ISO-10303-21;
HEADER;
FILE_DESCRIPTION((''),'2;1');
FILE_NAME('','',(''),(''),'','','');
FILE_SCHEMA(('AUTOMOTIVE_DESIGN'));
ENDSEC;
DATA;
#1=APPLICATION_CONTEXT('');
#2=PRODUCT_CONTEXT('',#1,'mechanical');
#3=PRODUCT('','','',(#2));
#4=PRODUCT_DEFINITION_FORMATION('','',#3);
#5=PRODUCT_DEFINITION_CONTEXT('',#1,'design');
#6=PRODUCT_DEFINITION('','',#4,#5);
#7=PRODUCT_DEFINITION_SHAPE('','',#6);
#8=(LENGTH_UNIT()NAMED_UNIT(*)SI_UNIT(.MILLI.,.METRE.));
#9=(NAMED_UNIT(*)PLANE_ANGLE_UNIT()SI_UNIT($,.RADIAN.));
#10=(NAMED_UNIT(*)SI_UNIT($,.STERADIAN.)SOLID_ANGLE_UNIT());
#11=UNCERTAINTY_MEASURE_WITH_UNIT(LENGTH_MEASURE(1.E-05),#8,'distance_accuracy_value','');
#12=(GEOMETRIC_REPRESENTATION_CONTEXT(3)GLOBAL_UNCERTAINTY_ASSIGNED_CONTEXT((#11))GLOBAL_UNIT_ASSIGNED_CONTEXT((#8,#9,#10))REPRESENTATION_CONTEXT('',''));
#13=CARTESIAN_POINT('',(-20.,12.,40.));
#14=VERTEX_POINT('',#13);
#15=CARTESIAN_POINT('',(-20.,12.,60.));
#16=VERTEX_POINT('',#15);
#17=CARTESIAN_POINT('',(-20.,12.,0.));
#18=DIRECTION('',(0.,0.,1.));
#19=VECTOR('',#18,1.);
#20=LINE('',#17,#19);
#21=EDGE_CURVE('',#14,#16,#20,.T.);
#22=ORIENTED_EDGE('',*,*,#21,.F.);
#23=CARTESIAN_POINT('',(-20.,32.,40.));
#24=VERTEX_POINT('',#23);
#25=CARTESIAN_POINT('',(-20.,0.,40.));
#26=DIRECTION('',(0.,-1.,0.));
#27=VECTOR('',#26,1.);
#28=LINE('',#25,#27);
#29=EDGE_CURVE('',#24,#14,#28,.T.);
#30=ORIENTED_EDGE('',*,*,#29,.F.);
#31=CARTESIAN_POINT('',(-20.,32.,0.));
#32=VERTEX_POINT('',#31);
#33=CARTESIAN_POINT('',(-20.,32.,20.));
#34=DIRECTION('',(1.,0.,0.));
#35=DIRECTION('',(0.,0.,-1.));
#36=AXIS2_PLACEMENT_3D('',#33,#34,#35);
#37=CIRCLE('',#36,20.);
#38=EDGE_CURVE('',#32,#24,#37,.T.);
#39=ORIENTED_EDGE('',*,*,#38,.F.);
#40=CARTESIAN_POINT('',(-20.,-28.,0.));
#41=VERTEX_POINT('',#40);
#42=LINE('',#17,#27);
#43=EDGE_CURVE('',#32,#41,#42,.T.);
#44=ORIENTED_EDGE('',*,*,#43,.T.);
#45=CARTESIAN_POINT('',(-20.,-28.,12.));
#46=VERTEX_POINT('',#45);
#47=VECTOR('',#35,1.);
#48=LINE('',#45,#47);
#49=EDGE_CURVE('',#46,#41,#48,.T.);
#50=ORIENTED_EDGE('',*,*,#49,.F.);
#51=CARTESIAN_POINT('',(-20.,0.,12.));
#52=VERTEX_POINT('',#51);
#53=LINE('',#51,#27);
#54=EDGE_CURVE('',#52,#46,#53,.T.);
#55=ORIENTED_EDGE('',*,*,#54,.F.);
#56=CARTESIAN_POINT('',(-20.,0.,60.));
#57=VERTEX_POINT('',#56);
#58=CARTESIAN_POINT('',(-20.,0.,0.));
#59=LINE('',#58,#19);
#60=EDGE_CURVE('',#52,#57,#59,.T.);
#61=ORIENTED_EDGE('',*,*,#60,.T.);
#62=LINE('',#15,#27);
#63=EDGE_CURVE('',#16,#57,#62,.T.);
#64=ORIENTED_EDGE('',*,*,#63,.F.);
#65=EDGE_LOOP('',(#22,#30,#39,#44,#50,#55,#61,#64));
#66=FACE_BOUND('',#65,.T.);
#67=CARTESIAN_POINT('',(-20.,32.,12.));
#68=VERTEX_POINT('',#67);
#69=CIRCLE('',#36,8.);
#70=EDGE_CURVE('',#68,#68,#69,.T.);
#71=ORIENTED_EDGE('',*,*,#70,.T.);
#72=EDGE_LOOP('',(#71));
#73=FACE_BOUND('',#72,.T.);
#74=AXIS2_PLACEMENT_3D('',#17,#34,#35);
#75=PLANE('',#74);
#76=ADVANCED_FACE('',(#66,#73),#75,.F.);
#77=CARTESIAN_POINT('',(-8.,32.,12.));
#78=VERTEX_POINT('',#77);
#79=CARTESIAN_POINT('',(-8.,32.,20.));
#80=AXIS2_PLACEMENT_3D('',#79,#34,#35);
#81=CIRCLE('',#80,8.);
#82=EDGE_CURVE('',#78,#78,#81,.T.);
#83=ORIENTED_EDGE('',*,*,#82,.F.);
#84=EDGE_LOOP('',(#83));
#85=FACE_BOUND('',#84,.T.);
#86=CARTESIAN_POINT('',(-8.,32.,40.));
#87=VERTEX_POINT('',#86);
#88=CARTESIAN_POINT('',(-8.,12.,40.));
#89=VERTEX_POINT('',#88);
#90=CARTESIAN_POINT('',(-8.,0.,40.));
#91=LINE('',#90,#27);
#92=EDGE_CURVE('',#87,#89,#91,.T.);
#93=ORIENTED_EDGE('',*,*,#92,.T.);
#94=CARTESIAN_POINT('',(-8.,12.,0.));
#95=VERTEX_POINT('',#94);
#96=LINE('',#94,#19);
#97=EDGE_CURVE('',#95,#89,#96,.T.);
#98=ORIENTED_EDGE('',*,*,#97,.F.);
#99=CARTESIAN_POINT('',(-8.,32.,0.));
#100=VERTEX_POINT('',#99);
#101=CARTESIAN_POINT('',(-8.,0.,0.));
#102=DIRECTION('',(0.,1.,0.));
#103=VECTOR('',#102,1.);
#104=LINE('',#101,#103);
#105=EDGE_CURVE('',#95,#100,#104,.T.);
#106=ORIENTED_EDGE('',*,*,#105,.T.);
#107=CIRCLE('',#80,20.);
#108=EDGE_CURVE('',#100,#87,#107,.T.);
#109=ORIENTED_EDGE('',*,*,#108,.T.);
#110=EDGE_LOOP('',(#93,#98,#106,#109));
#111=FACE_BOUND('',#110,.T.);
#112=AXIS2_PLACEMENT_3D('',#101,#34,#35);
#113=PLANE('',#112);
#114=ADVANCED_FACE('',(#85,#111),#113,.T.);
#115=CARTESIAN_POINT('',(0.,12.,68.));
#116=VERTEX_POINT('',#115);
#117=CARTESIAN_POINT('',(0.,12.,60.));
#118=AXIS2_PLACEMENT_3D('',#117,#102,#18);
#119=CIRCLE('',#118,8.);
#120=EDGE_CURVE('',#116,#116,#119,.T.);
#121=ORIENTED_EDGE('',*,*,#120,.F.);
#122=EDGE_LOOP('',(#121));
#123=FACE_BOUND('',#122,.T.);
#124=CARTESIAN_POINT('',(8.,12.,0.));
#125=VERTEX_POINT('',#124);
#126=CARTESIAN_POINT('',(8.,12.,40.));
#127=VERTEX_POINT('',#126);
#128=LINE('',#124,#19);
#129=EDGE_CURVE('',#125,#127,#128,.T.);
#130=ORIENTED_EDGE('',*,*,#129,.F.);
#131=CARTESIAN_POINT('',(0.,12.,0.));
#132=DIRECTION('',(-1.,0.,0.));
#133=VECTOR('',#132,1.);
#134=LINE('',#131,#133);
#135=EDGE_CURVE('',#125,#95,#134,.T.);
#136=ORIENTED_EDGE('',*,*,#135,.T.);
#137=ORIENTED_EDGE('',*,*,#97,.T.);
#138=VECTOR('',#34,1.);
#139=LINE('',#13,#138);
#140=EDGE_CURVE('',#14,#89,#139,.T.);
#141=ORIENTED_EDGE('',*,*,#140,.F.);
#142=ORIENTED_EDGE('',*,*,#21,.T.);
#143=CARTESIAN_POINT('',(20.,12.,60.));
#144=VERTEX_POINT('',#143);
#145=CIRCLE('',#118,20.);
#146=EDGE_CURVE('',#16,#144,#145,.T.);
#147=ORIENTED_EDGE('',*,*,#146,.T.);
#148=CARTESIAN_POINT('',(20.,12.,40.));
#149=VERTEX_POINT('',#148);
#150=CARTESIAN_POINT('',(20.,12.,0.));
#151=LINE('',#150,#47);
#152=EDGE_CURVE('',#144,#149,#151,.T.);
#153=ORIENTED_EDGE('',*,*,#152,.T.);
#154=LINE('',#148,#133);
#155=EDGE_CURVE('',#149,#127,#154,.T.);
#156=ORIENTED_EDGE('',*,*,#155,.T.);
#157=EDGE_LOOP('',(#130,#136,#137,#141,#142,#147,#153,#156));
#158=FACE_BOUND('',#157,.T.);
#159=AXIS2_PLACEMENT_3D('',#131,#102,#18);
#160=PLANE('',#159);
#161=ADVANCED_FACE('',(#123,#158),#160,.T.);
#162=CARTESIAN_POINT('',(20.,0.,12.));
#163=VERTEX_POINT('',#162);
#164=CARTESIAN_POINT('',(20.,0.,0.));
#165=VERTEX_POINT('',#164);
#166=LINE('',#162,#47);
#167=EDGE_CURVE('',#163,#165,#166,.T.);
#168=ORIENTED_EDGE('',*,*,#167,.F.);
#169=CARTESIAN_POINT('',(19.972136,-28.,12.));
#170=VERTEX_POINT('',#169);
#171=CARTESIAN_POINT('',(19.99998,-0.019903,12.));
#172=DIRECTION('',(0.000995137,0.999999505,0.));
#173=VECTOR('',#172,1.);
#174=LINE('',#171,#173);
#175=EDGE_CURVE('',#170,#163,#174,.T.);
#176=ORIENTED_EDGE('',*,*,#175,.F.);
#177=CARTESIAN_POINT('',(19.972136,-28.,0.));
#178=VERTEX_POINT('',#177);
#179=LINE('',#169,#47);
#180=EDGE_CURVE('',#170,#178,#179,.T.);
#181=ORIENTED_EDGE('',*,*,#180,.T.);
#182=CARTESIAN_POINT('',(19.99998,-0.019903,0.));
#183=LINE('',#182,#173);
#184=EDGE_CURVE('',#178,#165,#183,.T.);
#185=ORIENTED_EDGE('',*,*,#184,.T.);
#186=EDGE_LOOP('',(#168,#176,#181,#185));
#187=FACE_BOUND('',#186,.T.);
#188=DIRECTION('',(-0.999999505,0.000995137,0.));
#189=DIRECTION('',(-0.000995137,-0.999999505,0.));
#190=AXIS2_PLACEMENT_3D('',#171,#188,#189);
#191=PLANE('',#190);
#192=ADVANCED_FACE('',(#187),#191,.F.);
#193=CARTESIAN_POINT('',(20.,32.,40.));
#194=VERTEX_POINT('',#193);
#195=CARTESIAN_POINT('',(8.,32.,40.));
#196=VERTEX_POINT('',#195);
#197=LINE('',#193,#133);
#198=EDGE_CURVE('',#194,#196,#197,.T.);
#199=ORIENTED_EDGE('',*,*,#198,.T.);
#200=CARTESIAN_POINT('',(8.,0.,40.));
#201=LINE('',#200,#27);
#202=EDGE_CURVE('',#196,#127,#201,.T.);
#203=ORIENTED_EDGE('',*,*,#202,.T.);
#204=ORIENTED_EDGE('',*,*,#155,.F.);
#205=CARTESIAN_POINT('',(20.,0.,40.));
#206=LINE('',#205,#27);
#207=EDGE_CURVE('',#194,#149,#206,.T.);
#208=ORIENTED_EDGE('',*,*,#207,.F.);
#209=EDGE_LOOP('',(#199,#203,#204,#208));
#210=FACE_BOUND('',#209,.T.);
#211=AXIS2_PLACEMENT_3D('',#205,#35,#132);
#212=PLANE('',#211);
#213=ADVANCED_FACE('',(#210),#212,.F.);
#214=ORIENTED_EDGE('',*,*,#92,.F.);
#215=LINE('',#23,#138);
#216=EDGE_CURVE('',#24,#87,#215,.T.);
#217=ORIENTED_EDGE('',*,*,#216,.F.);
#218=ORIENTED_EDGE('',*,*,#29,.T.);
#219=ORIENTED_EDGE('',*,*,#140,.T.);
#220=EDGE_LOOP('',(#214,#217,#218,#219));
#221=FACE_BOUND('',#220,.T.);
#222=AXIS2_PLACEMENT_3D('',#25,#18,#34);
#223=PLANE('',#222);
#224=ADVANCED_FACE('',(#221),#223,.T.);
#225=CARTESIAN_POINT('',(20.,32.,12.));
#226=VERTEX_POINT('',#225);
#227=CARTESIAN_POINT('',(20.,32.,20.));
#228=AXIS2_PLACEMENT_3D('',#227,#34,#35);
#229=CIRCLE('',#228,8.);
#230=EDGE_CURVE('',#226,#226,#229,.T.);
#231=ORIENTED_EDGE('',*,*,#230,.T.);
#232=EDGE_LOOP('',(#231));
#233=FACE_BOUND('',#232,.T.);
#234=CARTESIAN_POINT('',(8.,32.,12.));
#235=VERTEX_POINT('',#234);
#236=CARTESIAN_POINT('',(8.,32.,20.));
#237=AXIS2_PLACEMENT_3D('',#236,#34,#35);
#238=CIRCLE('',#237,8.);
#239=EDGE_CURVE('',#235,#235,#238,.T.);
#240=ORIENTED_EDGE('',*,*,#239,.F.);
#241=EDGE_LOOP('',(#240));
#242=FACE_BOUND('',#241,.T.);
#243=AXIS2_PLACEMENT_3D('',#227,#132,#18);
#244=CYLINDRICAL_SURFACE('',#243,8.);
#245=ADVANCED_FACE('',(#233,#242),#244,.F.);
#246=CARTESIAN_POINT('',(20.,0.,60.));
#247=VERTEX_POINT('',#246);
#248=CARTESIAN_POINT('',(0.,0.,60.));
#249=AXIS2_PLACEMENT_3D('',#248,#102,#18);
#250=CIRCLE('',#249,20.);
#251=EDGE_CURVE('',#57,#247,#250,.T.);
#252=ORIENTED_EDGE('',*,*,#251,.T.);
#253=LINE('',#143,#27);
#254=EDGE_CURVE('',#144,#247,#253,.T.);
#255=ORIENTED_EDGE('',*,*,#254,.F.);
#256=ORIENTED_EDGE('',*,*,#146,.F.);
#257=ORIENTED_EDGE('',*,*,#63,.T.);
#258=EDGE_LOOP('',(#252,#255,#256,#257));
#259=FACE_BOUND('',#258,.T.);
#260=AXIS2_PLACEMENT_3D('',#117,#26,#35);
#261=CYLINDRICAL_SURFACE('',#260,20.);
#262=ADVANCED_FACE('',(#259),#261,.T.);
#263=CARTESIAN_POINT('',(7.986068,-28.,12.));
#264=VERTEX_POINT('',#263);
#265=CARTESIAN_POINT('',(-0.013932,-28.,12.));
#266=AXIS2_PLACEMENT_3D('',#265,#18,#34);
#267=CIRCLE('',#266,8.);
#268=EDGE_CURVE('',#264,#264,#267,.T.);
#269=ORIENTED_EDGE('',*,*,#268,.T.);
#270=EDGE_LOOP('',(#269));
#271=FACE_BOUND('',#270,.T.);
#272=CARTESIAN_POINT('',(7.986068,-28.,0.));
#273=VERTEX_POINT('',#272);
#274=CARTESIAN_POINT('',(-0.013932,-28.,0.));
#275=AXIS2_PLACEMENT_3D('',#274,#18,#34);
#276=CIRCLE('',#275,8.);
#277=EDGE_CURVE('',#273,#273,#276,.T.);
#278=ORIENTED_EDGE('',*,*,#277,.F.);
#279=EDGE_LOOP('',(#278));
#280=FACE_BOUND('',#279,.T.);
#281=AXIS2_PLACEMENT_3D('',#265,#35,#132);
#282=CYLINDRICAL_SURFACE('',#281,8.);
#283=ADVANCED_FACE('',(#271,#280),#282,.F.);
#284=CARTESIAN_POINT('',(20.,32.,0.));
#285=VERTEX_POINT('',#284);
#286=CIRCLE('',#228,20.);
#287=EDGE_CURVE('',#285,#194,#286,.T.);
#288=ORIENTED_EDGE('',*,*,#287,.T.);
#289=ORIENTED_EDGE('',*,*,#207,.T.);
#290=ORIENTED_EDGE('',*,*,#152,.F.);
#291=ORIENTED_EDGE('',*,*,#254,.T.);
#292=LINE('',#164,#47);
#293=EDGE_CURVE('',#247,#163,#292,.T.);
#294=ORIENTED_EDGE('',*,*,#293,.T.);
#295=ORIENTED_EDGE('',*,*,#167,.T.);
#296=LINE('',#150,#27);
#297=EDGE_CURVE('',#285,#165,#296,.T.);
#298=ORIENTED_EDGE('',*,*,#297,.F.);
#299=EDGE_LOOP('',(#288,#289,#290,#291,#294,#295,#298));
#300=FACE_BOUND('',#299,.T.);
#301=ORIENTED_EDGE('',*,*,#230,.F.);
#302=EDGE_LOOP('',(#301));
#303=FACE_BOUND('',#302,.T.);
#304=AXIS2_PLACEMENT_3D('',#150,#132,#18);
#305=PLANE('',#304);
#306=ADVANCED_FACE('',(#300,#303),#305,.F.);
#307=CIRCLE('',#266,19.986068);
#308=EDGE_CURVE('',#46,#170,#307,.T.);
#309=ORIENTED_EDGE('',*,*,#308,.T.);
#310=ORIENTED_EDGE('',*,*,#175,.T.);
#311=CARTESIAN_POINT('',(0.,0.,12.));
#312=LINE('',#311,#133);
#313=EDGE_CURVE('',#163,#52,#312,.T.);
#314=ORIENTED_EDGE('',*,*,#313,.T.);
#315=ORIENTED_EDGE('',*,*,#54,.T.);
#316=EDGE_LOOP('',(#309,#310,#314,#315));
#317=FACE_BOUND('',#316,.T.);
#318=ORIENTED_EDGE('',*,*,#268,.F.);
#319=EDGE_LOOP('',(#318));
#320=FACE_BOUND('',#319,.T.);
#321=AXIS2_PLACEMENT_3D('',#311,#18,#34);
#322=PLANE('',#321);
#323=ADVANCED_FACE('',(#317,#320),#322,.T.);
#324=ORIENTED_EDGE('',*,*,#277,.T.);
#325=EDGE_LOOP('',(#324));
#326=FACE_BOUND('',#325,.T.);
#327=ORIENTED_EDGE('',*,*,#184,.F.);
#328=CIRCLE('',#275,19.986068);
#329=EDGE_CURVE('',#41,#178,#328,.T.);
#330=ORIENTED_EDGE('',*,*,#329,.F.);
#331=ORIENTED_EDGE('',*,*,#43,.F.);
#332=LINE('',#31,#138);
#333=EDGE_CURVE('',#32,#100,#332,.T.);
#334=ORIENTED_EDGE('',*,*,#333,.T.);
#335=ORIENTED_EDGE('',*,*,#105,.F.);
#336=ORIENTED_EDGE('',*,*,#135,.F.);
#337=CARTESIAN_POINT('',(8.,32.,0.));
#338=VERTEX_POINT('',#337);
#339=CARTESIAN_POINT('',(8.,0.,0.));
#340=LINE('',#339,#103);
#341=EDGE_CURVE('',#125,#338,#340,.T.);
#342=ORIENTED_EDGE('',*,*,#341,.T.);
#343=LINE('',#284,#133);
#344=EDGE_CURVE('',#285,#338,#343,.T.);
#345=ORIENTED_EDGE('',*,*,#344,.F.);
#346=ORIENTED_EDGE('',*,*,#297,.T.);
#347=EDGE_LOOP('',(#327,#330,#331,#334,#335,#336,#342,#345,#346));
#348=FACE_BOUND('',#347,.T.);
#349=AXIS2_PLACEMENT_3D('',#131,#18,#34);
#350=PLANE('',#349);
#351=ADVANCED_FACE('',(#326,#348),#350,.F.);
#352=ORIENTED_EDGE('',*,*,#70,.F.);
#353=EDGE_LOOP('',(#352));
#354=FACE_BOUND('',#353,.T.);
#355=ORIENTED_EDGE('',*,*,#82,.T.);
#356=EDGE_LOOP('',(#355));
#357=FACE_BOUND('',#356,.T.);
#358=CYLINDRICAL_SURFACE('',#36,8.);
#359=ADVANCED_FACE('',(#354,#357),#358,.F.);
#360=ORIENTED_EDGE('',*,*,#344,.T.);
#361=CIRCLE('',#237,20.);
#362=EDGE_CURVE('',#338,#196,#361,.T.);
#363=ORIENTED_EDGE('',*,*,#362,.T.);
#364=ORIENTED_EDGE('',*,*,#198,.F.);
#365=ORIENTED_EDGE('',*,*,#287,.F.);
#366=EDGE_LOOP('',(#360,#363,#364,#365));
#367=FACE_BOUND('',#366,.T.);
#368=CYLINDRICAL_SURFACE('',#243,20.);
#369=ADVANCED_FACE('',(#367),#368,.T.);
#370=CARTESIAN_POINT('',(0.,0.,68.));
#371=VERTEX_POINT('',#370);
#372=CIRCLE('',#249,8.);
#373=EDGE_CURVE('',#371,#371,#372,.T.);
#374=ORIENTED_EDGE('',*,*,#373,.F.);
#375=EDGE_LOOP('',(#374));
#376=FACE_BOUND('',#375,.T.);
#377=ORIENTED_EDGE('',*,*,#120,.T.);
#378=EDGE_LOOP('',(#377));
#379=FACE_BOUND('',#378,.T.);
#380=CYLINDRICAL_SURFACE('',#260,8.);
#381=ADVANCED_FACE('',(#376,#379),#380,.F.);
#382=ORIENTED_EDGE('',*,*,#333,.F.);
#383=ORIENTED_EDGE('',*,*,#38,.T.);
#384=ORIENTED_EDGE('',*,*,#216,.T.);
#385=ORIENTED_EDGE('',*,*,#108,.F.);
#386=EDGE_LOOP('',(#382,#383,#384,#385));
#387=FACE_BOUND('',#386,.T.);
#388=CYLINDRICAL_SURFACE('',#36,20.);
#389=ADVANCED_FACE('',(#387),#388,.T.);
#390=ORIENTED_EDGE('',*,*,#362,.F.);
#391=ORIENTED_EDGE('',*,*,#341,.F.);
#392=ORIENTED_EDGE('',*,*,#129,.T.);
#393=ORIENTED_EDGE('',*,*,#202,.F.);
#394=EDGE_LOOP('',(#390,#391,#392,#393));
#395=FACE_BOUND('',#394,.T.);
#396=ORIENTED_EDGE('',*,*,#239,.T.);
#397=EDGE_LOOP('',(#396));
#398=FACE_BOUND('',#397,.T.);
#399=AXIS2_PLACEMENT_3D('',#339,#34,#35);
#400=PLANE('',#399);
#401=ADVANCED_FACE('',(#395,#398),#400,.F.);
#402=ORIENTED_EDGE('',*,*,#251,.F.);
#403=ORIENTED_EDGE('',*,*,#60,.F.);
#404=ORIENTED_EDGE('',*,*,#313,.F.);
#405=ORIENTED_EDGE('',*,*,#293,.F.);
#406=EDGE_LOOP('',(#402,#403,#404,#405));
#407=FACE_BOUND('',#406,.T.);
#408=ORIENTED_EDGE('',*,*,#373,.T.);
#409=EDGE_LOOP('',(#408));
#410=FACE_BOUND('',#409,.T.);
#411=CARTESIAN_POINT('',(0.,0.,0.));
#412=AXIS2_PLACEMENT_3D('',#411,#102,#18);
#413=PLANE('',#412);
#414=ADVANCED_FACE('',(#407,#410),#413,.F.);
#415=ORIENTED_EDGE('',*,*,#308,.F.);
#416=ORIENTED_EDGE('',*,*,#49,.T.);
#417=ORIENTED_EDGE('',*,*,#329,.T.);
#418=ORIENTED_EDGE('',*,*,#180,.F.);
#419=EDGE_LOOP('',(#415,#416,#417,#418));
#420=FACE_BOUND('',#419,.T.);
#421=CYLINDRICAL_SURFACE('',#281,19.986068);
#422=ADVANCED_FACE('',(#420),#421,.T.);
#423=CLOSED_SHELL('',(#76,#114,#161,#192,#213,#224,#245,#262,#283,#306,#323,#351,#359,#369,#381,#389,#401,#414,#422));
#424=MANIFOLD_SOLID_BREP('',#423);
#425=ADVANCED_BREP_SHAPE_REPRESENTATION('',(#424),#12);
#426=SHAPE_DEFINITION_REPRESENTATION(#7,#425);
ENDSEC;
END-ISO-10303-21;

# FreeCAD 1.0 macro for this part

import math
import FreeCAD as App
import Part
import Sketcher

V = App.Vector

doc = App.newDocument("Part")
body = doc.addObject("PartDesign::Body", "Body")

sketch1 = doc.addObject("Sketcher::SketchObject", "Sketch")
body.addObject(sketch1)
sketch1.AttachmentSupport = (doc.XZ_Plane, [""])
sketch1.MapMode = "FlatFace"
sketch1.addGeometry([
    Part.LineSegment(V(20, 0, 0), V(-20, 0, 0)),
    Part.LineSegment(V(-20, 0, 0), V(-20, 60, 0)),
    Part.ArcOfCircle(Part.Circle(V(0, 60, 0), V(0, 0, 1), 20), math.radians(0), math.radians(180)),
    Part.LineSegment(V(20, 60, 0), V(20, 0, 0)),
    Part.Circle(V(0, 60, 0), V(0, 0, 1), 8),
], False)
sketch1.addConstraint([
    Sketcher.Constraint("Coincident", 0, 2, 1, 1),
    Sketcher.Constraint("Tangent", 1, 2, 2, 2),
    Sketcher.Constraint("Tangent", 2, 1, 3, 1),
    Sketcher.Constraint("Coincident", 3, 2, 0, 1),
    Sketcher.Constraint("Horizontal", 0),
    Sketcher.Constraint("Vertical", 1),
    Sketcher.Constraint("Vertical", 3),
    Sketcher.Constraint("Coincident", 4, 3, 2, 3),
    Sketcher.Constraint("Symmetric", 0, 2, 3, 2, -1, 1),
    Sketcher.Constraint("Diameter", 4, 16.0),
    Sketcher.Constraint("Radius", 2, 20.0),
    Sketcher.Constraint("DistanceY", 1, 1, 1, 2, 60.0),
])
pad1 = doc.addObject("PartDesign::Pad", "Pad")
body.addObject(pad1)
pad1.Profile = sketch1
pad1.Length = 12
pad1.Reversed = True

sketch2 = doc.addObject("Sketcher::SketchObject", "Sketch001")
body.addObject(sketch2)
sketch2.AttachmentSupport = (doc.YZ_Plane, [""])
sketch2.MapMode = "FlatFace"
sketch2.AttachmentOffset = App.Placement(V(0, 0, 8), App.Rotation())
sketch2.addGeometry([
    Part.LineSegment(V(12, 40, 0), V(12, 0, 0)),
    Part.LineSegment(V(12, 0, 0), V(32, 0, 0)),
    Part.ArcOfCircle(Part.Circle(V(32, 20, 0), V(0, 0, 1), 20), math.radians(-90), math.radians(90)),
    Part.LineSegment(V(32, 40, 0), V(12, 40, 0)),
    Part.Circle(V(32, 20, 0), V(0, 0, 1), 8),
], False)
sketch2.addConstraint([
    Sketcher.Constraint("Coincident", 0, 2, 1, 1),
    Sketcher.Constraint("Tangent", 1, 2, 2, 1),
    Sketcher.Constraint("Tangent", 2, 2, 3, 1),
    Sketcher.Constraint("Coincident", 3, 2, 0, 1),
    Sketcher.Constraint("Vertical", 0),
    Sketcher.Constraint("Horizontal", 1),
    Sketcher.Constraint("Horizontal", 3),
    Sketcher.Constraint("Coincident", 4, 3, 2, 3),
    Sketcher.Constraint("PointOnObject", 0, 2, -1),
    Sketcher.Constraint("Diameter", 4, 16.0),
    Sketcher.Constraint("Radius", 2, 20.0),
    Sketcher.Constraint("DistanceX", 1, 1, 1, 2, 20.0),
    Sketcher.Constraint("DistanceX", -1, 1, 2, 3, 32.0),
])
pad2 = doc.addObject("PartDesign::Pad", "Pad001")
body.addObject(pad2)
pad2.Profile = sketch2
pad2.Length = 12

sketch3 = doc.addObject("Sketcher::SketchObject", "Sketch002")
body.addObject(sketch3)
sketch3.AttachmentSupport = (doc.YZ_Plane, [""])
sketch3.MapMode = "FlatFace"
sketch3.AttachmentOffset = App.Placement(V(0, 0, -20), App.Rotation())
sketch3.addGeometry([
    Part.LineSegment(V(12, 40, 0), V(12, 0, 0)),
    Part.LineSegment(V(12, 0, 0), V(32, 0, 0)),
    Part.ArcOfCircle(Part.Circle(V(32, 20, 0), V(0, 0, 1), 20), math.radians(-90), math.radians(90)),
    Part.LineSegment(V(32, 40, 0), V(12, 40, 0)),
    Part.Circle(V(32, 20, 0), V(0, 0, 1), 8),
], False)
sketch3.addConstraint([
    Sketcher.Constraint("Coincident", 0, 2, 1, 1),
    Sketcher.Constraint("Tangent", 1, 2, 2, 1),
    Sketcher.Constraint("Tangent", 2, 2, 3, 1),
    Sketcher.Constraint("Coincident", 3, 2, 0, 1),
    Sketcher.Constraint("Vertical", 0),
    Sketcher.Constraint("Horizontal", 1),
    Sketcher.Constraint("Horizontal", 3),
    Sketcher.Constraint("Coincident", 4, 3, 2, 3),
    Sketcher.Constraint("PointOnObject", 0, 2, -1),
    Sketcher.Constraint("Diameter", 4, 16.0),
    Sketcher.Constraint("Radius", 2, 20.0),
    Sketcher.Constraint("DistanceX", 1, 1, 1, 2, 20.0),
    Sketcher.Constraint("DistanceX", -1, 1, 2, 3, 32.0),
])
pad3 = doc.addObject("PartDesign::Pad", "Pad002")
body.addObject(pad3)
pad3.Profile = sketch3
pad3.Length = 12

sketch4 = doc.addObject("Sketcher::SketchObject", "Sketch003")
body.addObject(sketch4)
sketch4.AttachmentSupport = (doc.XY_Plane, [""])
sketch4.MapMode = "FlatFace"
sketch4.addGeometry([
    Part.LineSegment(V(20, 0, 0), V(-20, 0, 0)),
    Part.LineSegment(V(-20, 0, 0), V(-20, -28, 0)),
    Part.ArcOfCircle(Part.Circle(V(0, -28, 0), V(0, 0, 1), 20), math.radians(180), math.radians(360)),
    Part.LineSegment(V(20, -28, 0), V(20, 0, 0)),
    Part.Circle(V(0, -28, 0), V(0, 0, 1), 8),
], False)
sketch4.addConstraint([
    Sketcher.Constraint("Coincident", 0, 2, 1, 1),
    Sketcher.Constraint("Tangent", 1, 2, 2, 1),
    Sketcher.Constraint("Coincident", 2, 2, 3, 1),
    Sketcher.Constraint("Coincident", 3, 2, 0, 1),
    Sketcher.Constraint("Horizontal", 0),
    Sketcher.Constraint("Vertical", 1),
    Sketcher.Constraint("Coincident", 4, 3, 2, 3),
    Sketcher.Constraint("Symmetric", 0, 2, 3, 2, -1, 1),
    Sketcher.Constraint("Horizontal", 1, 2, 2, 2),
    Sketcher.Constraint("Diameter", 4, 16.0),
    Sketcher.Constraint("DistanceX", 0, 2, 0, 1, 40.0),
    Sketcher.Constraint("DistanceY", 1, 2, 1, 1, 28.0),
    Sketcher.Constraint("Radius", 2, 19.986068),
])
pad4 = doc.addObject("PartDesign::Pad", "Pad003")
body.addObject(pad4)
pad4.Profile = sketch4
pad4.Length = 12

doc.recompute()
